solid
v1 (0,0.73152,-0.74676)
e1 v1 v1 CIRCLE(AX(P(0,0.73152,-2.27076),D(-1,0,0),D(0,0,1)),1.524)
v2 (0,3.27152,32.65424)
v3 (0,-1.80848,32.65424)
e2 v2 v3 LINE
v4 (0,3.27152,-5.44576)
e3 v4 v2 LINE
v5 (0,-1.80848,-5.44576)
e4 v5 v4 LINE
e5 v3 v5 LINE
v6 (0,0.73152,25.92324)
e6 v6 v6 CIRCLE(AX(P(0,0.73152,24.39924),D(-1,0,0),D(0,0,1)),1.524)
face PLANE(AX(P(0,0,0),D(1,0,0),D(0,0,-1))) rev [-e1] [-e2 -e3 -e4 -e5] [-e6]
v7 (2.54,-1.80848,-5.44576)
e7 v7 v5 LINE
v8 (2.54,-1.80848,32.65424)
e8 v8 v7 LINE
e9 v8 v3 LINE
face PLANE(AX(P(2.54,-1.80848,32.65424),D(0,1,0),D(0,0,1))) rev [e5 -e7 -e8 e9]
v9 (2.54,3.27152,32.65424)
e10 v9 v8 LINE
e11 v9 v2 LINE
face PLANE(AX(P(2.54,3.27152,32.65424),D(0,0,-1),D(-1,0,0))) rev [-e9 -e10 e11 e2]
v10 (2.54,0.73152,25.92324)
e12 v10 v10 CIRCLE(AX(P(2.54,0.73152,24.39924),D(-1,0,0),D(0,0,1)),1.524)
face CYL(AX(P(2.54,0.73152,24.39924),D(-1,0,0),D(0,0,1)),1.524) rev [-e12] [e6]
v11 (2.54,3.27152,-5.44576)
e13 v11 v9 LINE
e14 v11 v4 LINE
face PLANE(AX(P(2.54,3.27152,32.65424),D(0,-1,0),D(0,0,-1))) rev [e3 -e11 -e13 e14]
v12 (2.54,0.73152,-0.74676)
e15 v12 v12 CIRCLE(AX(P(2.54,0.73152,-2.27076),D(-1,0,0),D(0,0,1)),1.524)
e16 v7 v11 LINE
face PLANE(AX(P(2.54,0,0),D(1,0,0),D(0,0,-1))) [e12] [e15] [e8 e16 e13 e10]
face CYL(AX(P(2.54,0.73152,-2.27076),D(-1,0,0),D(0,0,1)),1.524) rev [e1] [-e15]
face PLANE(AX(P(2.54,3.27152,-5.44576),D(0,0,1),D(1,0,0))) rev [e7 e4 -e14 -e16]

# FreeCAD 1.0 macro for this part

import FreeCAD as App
import Part
import Sketcher
Q = App.Units.Quantity

doc = App.newDocument("Part")
body = doc.addObject("PartDesign::Body", "Body")

sketch1 = doc.addObject("Sketcher::SketchObject", "Sketch")
body.addObject(sketch1)
sketch1.AttachmentSupport = (doc.YZ_Plane, [""])
sketch1.MapMode = "FlatFace"
sketch1.addGeometry(Part.LineSegment(App.Vector(3, 33, 0), App.Vector(-2, 33, 0)), False)
sketch1.addGeometry(Part.LineSegment(App.Vector(-2, 33, 0), App.Vector(-2, -5, 0)), False)
sketch1.addGeometry(Part.LineSegment(App.Vector(-2, -5, 0), App.Vector(3, -5, 0)), False)
sketch1.addGeometry(Part.LineSegment(App.Vector(3, -5, 0), App.Vector(3, 33, 0)), False)
sketch1.addConstraint(Sketcher.Constraint("Coincident", 0, 2, 1, 1))
sketch1.addConstraint(Sketcher.Constraint("Coincident", 1, 2, 2, 1))
sketch1.addConstraint(Sketcher.Constraint("Coincident", 2, 2, 3, 1))
sketch1.addConstraint(Sketcher.Constraint("Coincident", 3, 2, 0, 1))
sketch1.addConstraint(Sketcher.Constraint("Horizontal", 0))
sketch1.addConstraint(Sketcher.Constraint("Vertical", 1))
sketch1.addConstraint(Sketcher.Constraint("Horizontal", 2))
sketch1.addConstraint(Sketcher.Constraint("Vertical", 3))
sketch1.addConstraint(Sketcher.Constraint("DistanceX", 0, 2, 0, 1, Q("0.2 in")))
sketch1.addConstraint(Sketcher.Constraint("DistanceY", 1, 2, 1, 1, Q("1.5 in")))
sketch1.addConstraint(Sketcher.Constraint("DistanceX", 0, 2, -1, 1, Q("0.0712 in")))
sketch1.addConstraint(Sketcher.Constraint("DistanceY", -1, 1, 0, 2, Q("1.2856 in")))
pad1 = doc.addObject("PartDesign::Pad", "Pad")
body.addObject(pad1)
pad1.Profile = sketch1
pad1.Length = Q("0.1 in")

sketch2 = doc.addObject("Sketcher::SketchObject", "Sketch001")
body.addObject(sketch2)
sketch2.AttachmentSupport = (doc.YZ_Plane, [""])
sketch2.MapMode = "FlatFace"
sketch2.addGeometry(Part.Circle(App.Vector(0.7, 24.4, 0), App.Vector(0, 0, 1), 1.5), False)
sketch2.addGeometry(Part.Circle(App.Vector(0.7, -2.3, 0), App.Vector(0, 0, 1), 1.5), False)
sketch2.addConstraint(Sketcher.Constraint("Equal", 0, 1))
sketch2.addConstraint(Sketcher.Constraint("Vertical", 0, 3, 1, 3))
sketch2.addConstraint(Sketcher.Constraint("Diameter", 0, Q("0.12 in")))
sketch2.addConstraint(Sketcher.Constraint("DistanceY", 1, 3, 0, 3, Q("1.05 in")))
sketch2.addConstraint(Sketcher.Constraint("DistanceX", -1, 1, 0, 3, Q("0.0288 in")))
sketch2.addConstraint(Sketcher.Constraint("DistanceY", -1, 1, 0, 3, Q("0.9606 in")))
pocket1 = doc.addObject("PartDesign::Pocket", "Pocket")
body.addObject(pocket1)
pocket1.Profile = sketch2
pocket1.Type = "ThroughAll"
pocket1.Reversed = True

doc.recompute()
